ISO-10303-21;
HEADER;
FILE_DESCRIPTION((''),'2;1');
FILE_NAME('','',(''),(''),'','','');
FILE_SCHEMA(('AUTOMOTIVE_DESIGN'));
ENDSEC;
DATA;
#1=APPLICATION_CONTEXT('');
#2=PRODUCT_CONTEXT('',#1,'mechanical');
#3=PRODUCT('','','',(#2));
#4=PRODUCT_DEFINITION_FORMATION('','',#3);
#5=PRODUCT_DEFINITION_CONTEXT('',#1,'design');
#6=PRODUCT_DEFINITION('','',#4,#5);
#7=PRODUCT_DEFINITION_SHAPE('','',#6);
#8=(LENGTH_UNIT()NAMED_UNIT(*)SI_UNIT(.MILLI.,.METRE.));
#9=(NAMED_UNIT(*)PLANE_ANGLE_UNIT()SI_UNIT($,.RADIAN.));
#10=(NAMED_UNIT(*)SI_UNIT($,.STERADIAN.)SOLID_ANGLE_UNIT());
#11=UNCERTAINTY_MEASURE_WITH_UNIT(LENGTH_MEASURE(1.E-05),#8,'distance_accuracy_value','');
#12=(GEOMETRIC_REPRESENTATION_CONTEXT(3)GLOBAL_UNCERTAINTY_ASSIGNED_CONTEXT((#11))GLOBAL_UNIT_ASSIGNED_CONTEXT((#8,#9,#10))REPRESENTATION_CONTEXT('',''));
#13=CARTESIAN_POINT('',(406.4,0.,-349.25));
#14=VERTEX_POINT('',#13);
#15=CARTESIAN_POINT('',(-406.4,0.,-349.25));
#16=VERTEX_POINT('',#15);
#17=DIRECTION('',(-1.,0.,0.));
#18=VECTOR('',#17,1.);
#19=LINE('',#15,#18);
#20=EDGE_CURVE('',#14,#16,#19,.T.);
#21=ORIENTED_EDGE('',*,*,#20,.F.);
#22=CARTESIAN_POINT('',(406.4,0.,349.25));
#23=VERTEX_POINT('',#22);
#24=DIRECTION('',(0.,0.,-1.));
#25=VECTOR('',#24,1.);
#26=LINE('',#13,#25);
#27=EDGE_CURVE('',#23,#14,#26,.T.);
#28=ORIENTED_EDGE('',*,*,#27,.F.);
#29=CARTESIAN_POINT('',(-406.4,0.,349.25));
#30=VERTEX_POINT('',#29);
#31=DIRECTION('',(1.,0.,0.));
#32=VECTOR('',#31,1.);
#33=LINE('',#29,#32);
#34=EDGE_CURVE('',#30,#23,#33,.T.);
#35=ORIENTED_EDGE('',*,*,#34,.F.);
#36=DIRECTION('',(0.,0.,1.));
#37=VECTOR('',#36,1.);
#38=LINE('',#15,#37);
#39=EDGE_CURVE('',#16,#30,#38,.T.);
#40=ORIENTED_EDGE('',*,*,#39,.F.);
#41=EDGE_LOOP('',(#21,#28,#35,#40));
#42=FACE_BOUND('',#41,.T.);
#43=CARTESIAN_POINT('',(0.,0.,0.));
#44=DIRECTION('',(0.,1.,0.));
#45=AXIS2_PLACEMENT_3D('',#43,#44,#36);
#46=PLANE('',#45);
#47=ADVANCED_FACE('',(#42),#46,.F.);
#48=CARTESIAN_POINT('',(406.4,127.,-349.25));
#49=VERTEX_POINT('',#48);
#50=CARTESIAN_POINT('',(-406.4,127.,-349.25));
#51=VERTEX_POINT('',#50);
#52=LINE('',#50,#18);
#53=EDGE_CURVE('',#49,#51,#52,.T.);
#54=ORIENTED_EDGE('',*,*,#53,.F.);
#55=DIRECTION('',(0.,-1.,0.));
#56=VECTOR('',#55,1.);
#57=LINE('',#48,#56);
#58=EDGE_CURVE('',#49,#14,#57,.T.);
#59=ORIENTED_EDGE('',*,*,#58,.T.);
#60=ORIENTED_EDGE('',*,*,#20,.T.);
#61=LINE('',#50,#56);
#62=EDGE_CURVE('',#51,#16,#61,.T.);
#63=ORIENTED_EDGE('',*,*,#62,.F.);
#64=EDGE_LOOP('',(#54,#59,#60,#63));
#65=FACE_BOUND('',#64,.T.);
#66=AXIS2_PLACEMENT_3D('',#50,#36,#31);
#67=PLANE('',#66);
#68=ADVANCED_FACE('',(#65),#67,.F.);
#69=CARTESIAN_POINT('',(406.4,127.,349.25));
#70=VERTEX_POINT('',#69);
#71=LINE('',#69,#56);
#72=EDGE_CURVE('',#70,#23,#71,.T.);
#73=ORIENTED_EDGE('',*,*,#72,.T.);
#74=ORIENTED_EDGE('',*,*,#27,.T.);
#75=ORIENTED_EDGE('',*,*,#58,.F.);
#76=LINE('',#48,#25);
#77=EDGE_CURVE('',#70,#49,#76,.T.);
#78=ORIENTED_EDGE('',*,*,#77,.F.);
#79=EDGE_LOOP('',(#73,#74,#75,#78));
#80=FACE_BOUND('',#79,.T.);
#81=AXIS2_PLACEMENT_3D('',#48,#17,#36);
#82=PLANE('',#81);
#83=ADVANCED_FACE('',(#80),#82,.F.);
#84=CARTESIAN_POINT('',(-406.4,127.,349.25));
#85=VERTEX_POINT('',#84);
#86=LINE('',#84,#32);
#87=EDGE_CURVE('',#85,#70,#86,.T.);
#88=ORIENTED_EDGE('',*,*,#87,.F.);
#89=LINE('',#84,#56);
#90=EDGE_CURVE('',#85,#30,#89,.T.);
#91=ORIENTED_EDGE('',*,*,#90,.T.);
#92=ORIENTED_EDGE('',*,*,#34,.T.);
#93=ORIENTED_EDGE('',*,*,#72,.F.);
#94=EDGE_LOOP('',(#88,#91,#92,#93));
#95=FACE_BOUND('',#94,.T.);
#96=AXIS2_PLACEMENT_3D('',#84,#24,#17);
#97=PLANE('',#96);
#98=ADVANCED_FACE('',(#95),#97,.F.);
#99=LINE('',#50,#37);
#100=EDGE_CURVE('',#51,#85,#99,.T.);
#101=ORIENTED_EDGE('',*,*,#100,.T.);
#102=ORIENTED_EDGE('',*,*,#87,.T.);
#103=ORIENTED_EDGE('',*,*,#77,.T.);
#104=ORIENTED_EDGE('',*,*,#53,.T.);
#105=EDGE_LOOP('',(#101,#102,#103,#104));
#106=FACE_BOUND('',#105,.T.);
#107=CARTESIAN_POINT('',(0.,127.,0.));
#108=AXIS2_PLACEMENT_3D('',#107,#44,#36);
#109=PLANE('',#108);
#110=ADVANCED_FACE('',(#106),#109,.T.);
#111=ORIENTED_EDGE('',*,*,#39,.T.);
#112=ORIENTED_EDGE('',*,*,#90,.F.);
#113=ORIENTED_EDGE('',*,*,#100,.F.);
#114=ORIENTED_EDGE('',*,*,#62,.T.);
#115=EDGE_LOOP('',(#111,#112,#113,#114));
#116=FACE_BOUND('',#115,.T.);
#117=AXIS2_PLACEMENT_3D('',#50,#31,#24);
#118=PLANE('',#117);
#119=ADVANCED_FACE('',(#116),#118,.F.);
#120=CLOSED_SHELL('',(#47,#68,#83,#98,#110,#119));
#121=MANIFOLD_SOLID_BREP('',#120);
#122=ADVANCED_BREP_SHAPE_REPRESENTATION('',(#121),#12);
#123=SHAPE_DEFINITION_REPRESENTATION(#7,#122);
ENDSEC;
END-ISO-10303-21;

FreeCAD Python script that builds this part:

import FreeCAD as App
import Part
import Sketcher

V = App.Vector
Q = App.Units.Quantity


def add_polygon(sketch, points):
    """Adds a closed chain of lines whose ends are joined by coincident constraints."""
    first, n = sketch.GeometryCount, len(points)
    for a, b in zip(points, points[1:] + points[:1]):
        sketch.addGeometry(Part.LineSegment(App.Vector(*a, 0), App.Vector(*b, 0)), False)
    for i in range(n):
        sketch.addConstraint(Sketcher.Constraint("Coincident", first + i, 2, first + (i + 1) % n, 1))

doc = App.newDocument("Part")
body = doc.addObject("PartDesign::Body", "Body")

# Sketch on XZ plane
sketch1 = body.newObject("Sketcher::SketchObject", "Sketch")
sketch1.AttachmentSupport = (doc.getObject("XZ_Plane"), [""])
sketch1.MapMode = "FlatFace"
add_polygon(sketch1, [(-406, -349), (-406, 349), (406, 349), (406, -349)])  # lines 0-3
sketch1.addConstraint([
    Sketcher.Constraint("Vertical", 0),
    Sketcher.Constraint("Horizontal", 1),
    Sketcher.Constraint("Vertical", 2),
    Sketcher.Constraint("Horizontal", 3),
    Sketcher.Constraint("Symmetric", 0, 2, 2, 2, -1, 1),
    Sketcher.Constraint("DistanceX", 1, 1, 1, 2, Q("32 in")),
    Sketcher.Constraint("DistanceY", 0, 1, 0, 2, Q("27.5 in")),
])
pad1 = body.newObject("PartDesign::Pad", "Pad")
pad1.Profile = sketch1
pad1.Length = Q("5 in")
pad1.Reversed = True

doc.recompute()
